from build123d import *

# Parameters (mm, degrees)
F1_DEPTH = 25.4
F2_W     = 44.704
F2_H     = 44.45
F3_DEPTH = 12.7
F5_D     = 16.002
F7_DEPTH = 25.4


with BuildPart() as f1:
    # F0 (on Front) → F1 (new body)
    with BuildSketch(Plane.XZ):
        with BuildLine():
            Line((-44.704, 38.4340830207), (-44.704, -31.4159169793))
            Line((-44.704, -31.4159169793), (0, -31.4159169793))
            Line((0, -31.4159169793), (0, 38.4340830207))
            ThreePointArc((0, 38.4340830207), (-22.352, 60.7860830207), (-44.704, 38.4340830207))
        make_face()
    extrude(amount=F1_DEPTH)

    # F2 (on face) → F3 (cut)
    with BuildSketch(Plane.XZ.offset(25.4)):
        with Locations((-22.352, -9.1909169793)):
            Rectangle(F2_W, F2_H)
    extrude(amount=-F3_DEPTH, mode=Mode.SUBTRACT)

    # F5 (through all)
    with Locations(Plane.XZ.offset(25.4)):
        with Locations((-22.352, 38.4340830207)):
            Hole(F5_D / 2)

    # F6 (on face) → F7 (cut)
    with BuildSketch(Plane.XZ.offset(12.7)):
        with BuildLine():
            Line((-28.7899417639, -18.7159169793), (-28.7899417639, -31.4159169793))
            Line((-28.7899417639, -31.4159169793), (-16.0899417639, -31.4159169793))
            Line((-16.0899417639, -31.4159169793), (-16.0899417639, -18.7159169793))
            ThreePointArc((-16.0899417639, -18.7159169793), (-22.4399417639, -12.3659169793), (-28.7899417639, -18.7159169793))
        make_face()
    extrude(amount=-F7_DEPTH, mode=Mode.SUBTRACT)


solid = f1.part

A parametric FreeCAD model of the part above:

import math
import FreeCAD as App
import Part
import Sketcher
Q = App.Units.Quantity


def add_polygon(sketch, points):
    """Adds a closed chain of lines whose ends are joined by coincident constraints."""
    first, n = sketch.GeometryCount, len(points)
    for a, b in zip(points, points[1:] + points[:1]):
        sketch.addGeometry(Part.LineSegment(App.Vector(*a, 0), App.Vector(*b, 0)), False)
    for i in range(n):
        sketch.addConstraint(Sketcher.Constraint("Coincident", first + i, 2, first + (i + 1) % n, 1))

doc = App.newDocument("Part")
body = doc.addObject("PartDesign::Body", "Body")

sketch1 = body.newObject("Sketcher::SketchObject", "Sketch")
sketch1.AttachmentSupport = (doc.getObject("XZ_Plane"), [""])
sketch1.MapMode = "FlatFace"
sketch1.addGeometry(Part.LineSegment(App.Vector(-45, 38, 0), App.Vector(-45, -31, 0)), False)
sketch1.addGeometry(Part.LineSegment(App.Vector(-45, -31, 0), App.Vector(0, -31, 0)), False)
sketch1.addGeometry(Part.LineSegment(App.Vector(0, -31, 0), App.Vector(0, 38, 0)), False)
sketch1.addGeometry(Part.ArcOfCircle(Part.Circle(App.Vector(-22, 38, 0), App.Vector(0, 0, 1), 22), math.radians(0), math.radians(180)), False)
sketch1.addConstraint(Sketcher.Constraint("Coincident", 0, 2, 1, 1))
sketch1.addConstraint(Sketcher.Constraint("Coincident", 1, 2, 2, 1))
sketch1.addConstraint(Sketcher.Constraint("Tangent", 2, 2, 3, 1))
sketch1.addConstraint(Sketcher.Constraint("Tangent", 3, 2, 0, 1))
sketch1.addConstraint(Sketcher.Constraint("Vertical", 0))
sketch1.addConstraint(Sketcher.Constraint("Horizontal", 1))
sketch1.addConstraint(Sketcher.Constraint("Vertical", 2))
sketch1.addConstraint(Sketcher.Constraint("PointOnObject", 1, 2, -2))
sketch1.addConstraint(Sketcher.Constraint("Radius", 3, Q("0.88 in")))
sketch1.addConstraint(Sketcher.Constraint("DistanceY", 0, 2, 0, 1, Q("2.75 in")))
sketch1.addConstraint(Sketcher.Constraint("DistanceY", -1, 1, 3, 3, Q("38.434083 mm")))
pad1 = body.newObject("PartDesign::Pad", "Pad")
pad1.Profile = sketch1
pad1.Length = Q("1 in")

sketch2 = body.newObject("Sketcher::SketchObject", "Sketch001")
sketch2.AttachmentSupport = (doc.getObject("XZ_Plane"), [""])
sketch2.MapMode = "FlatFace"
sketch2.AttachmentOffset = App.Placement(App.Vector(0, 0, 1 * 25.4), App.Rotation())
add_polygon(sketch2, [(-45, 13), (-45, -31), (0, -31), (0, 13)])
sketch2.addConstraint(Sketcher.Constraint("Vertical", 0))
sketch2.addConstraint(Sketcher.Constraint("Horizontal", 1))
sketch2.addConstraint(Sketcher.Constraint("Vertical", 2))
sketch2.addConstraint(Sketcher.Constraint("Horizontal", 3))
sketch2.addConstraint(Sketcher.Constraint("PointOnObject", 1, 2, -2))
sketch2.addConstraint(Sketcher.Constraint("DistanceX", 1, 1, 1, 2, Q("1.76 in")))
sketch2.addConstraint(Sketcher.Constraint("DistanceY", 0, 2, 0, 1, Q("1.75 in")))
sketch2.addConstraint(Sketcher.Constraint("DistanceY", 0, 2, -1, 1, Q("31.415917 mm")))
pocket1 = body.newObject("PartDesign::Pocket", "Pocket")
pocket1.Profile = sketch2
pocket1.Length = Q("0.5 in")

sketch3 = body.newObject("Sketcher::SketchObject", "Sketch002")
sketch3.AttachmentSupport = (doc.getObject("XZ_Plane"), [""])
sketch3.MapMode = "FlatFace"
sketch3.AttachmentOffset = App.Placement(App.Vector(0, 0, 1 * 25.4), App.Rotation())
sketch3.addGeometry(Part.Circle(App.Vector(-22, 38, 0), App.Vector(0, 0, 1), 8), False)
sketch3.addConstraint(Sketcher.Constraint("Diameter", 0, Q("0.63 in")))
sketch3.addConstraint(Sketcher.Constraint("DistanceX", 0, 3, -1, 1, Q("0.88 in")))
sketch3.addConstraint(Sketcher.Constraint("DistanceY", -1, 1, 0, 3, Q("38.434083 mm")))
doc.recompute()
hole = body.newObject("PartDesign::Hole", "Hole")
hole.Profile = sketch3
hole.ThreadType = "None"
hole.Diameter = Q("0.63 in")
hole.DepthType = "ThroughAll"

sketch4 = body.newObject("Sketcher::SketchObject", "Sketch003")
sketch4.AttachmentSupport = (doc.getObject("XZ_Plane"), [""])
sketch4.MapMode = "FlatFace"
sketch4.AttachmentOffset = App.Placement(App.Vector(0, 0, 0.5 * 25.4), App.Rotation())
sketch4.addGeometry(Part.LineSegment(App.Vector(-29, -19, 0), App.Vector(-29, -31, 0)), False)
sketch4.addGeometry(Part.LineSegment(App.Vector(-29, -31, 0), App.Vector(-16, -31, 0)), False)
sketch4.addGeometry(Part.LineSegment(App.Vector(-16, -31, 0), App.Vector(-16, -19, 0)), False)
sketch4.addGeometry(Part.ArcOfCircle(Part.Circle(App.Vector(-22, -19, 0), App.Vector(0, 0, 1), 6), math.radians(0), math.radians(180)), False)
sketch4.addConstraint(Sketcher.Constraint("Coincident", 0, 2, 1, 1))
sketch4.addConstraint(Sketcher.Constraint("Coincident", 1, 2, 2, 1))
sketch4.addConstraint(Sketcher.Constraint("Tangent", 2, 2, 3, 1))
sketch4.addConstraint(Sketcher.Constraint("Tangent", 3, 2, 0, 1))
sketch4.addConstraint(Sketcher.Constraint("Vertical", 0))
sketch4.addConstraint(Sketcher.Constraint("Horizontal", 1))
sketch4.addConstraint(Sketcher.Constraint("Vertical", 2))
sketch4.addConstraint(Sketcher.Constraint("Equal", 1, 0))
sketch4.addConstraint(Sketcher.Constraint("Radius", 3, Q("0.25 in")))
sketch4.addConstraint(Sketcher.Constraint("DistanceX", 3, 3, -1, 1, Q("22.439942 mm")))
sketch4.addConstraint(Sketcher.Constraint("DistanceY", 3, 3, -1, 1, Q("18.715917 mm")))
pocket2 = body.newObject("PartDesign::Pocket", "Pocket001")
pocket2.Profile = sketch4
pocket2.Length = Q("1 in")

doc.recompute()
